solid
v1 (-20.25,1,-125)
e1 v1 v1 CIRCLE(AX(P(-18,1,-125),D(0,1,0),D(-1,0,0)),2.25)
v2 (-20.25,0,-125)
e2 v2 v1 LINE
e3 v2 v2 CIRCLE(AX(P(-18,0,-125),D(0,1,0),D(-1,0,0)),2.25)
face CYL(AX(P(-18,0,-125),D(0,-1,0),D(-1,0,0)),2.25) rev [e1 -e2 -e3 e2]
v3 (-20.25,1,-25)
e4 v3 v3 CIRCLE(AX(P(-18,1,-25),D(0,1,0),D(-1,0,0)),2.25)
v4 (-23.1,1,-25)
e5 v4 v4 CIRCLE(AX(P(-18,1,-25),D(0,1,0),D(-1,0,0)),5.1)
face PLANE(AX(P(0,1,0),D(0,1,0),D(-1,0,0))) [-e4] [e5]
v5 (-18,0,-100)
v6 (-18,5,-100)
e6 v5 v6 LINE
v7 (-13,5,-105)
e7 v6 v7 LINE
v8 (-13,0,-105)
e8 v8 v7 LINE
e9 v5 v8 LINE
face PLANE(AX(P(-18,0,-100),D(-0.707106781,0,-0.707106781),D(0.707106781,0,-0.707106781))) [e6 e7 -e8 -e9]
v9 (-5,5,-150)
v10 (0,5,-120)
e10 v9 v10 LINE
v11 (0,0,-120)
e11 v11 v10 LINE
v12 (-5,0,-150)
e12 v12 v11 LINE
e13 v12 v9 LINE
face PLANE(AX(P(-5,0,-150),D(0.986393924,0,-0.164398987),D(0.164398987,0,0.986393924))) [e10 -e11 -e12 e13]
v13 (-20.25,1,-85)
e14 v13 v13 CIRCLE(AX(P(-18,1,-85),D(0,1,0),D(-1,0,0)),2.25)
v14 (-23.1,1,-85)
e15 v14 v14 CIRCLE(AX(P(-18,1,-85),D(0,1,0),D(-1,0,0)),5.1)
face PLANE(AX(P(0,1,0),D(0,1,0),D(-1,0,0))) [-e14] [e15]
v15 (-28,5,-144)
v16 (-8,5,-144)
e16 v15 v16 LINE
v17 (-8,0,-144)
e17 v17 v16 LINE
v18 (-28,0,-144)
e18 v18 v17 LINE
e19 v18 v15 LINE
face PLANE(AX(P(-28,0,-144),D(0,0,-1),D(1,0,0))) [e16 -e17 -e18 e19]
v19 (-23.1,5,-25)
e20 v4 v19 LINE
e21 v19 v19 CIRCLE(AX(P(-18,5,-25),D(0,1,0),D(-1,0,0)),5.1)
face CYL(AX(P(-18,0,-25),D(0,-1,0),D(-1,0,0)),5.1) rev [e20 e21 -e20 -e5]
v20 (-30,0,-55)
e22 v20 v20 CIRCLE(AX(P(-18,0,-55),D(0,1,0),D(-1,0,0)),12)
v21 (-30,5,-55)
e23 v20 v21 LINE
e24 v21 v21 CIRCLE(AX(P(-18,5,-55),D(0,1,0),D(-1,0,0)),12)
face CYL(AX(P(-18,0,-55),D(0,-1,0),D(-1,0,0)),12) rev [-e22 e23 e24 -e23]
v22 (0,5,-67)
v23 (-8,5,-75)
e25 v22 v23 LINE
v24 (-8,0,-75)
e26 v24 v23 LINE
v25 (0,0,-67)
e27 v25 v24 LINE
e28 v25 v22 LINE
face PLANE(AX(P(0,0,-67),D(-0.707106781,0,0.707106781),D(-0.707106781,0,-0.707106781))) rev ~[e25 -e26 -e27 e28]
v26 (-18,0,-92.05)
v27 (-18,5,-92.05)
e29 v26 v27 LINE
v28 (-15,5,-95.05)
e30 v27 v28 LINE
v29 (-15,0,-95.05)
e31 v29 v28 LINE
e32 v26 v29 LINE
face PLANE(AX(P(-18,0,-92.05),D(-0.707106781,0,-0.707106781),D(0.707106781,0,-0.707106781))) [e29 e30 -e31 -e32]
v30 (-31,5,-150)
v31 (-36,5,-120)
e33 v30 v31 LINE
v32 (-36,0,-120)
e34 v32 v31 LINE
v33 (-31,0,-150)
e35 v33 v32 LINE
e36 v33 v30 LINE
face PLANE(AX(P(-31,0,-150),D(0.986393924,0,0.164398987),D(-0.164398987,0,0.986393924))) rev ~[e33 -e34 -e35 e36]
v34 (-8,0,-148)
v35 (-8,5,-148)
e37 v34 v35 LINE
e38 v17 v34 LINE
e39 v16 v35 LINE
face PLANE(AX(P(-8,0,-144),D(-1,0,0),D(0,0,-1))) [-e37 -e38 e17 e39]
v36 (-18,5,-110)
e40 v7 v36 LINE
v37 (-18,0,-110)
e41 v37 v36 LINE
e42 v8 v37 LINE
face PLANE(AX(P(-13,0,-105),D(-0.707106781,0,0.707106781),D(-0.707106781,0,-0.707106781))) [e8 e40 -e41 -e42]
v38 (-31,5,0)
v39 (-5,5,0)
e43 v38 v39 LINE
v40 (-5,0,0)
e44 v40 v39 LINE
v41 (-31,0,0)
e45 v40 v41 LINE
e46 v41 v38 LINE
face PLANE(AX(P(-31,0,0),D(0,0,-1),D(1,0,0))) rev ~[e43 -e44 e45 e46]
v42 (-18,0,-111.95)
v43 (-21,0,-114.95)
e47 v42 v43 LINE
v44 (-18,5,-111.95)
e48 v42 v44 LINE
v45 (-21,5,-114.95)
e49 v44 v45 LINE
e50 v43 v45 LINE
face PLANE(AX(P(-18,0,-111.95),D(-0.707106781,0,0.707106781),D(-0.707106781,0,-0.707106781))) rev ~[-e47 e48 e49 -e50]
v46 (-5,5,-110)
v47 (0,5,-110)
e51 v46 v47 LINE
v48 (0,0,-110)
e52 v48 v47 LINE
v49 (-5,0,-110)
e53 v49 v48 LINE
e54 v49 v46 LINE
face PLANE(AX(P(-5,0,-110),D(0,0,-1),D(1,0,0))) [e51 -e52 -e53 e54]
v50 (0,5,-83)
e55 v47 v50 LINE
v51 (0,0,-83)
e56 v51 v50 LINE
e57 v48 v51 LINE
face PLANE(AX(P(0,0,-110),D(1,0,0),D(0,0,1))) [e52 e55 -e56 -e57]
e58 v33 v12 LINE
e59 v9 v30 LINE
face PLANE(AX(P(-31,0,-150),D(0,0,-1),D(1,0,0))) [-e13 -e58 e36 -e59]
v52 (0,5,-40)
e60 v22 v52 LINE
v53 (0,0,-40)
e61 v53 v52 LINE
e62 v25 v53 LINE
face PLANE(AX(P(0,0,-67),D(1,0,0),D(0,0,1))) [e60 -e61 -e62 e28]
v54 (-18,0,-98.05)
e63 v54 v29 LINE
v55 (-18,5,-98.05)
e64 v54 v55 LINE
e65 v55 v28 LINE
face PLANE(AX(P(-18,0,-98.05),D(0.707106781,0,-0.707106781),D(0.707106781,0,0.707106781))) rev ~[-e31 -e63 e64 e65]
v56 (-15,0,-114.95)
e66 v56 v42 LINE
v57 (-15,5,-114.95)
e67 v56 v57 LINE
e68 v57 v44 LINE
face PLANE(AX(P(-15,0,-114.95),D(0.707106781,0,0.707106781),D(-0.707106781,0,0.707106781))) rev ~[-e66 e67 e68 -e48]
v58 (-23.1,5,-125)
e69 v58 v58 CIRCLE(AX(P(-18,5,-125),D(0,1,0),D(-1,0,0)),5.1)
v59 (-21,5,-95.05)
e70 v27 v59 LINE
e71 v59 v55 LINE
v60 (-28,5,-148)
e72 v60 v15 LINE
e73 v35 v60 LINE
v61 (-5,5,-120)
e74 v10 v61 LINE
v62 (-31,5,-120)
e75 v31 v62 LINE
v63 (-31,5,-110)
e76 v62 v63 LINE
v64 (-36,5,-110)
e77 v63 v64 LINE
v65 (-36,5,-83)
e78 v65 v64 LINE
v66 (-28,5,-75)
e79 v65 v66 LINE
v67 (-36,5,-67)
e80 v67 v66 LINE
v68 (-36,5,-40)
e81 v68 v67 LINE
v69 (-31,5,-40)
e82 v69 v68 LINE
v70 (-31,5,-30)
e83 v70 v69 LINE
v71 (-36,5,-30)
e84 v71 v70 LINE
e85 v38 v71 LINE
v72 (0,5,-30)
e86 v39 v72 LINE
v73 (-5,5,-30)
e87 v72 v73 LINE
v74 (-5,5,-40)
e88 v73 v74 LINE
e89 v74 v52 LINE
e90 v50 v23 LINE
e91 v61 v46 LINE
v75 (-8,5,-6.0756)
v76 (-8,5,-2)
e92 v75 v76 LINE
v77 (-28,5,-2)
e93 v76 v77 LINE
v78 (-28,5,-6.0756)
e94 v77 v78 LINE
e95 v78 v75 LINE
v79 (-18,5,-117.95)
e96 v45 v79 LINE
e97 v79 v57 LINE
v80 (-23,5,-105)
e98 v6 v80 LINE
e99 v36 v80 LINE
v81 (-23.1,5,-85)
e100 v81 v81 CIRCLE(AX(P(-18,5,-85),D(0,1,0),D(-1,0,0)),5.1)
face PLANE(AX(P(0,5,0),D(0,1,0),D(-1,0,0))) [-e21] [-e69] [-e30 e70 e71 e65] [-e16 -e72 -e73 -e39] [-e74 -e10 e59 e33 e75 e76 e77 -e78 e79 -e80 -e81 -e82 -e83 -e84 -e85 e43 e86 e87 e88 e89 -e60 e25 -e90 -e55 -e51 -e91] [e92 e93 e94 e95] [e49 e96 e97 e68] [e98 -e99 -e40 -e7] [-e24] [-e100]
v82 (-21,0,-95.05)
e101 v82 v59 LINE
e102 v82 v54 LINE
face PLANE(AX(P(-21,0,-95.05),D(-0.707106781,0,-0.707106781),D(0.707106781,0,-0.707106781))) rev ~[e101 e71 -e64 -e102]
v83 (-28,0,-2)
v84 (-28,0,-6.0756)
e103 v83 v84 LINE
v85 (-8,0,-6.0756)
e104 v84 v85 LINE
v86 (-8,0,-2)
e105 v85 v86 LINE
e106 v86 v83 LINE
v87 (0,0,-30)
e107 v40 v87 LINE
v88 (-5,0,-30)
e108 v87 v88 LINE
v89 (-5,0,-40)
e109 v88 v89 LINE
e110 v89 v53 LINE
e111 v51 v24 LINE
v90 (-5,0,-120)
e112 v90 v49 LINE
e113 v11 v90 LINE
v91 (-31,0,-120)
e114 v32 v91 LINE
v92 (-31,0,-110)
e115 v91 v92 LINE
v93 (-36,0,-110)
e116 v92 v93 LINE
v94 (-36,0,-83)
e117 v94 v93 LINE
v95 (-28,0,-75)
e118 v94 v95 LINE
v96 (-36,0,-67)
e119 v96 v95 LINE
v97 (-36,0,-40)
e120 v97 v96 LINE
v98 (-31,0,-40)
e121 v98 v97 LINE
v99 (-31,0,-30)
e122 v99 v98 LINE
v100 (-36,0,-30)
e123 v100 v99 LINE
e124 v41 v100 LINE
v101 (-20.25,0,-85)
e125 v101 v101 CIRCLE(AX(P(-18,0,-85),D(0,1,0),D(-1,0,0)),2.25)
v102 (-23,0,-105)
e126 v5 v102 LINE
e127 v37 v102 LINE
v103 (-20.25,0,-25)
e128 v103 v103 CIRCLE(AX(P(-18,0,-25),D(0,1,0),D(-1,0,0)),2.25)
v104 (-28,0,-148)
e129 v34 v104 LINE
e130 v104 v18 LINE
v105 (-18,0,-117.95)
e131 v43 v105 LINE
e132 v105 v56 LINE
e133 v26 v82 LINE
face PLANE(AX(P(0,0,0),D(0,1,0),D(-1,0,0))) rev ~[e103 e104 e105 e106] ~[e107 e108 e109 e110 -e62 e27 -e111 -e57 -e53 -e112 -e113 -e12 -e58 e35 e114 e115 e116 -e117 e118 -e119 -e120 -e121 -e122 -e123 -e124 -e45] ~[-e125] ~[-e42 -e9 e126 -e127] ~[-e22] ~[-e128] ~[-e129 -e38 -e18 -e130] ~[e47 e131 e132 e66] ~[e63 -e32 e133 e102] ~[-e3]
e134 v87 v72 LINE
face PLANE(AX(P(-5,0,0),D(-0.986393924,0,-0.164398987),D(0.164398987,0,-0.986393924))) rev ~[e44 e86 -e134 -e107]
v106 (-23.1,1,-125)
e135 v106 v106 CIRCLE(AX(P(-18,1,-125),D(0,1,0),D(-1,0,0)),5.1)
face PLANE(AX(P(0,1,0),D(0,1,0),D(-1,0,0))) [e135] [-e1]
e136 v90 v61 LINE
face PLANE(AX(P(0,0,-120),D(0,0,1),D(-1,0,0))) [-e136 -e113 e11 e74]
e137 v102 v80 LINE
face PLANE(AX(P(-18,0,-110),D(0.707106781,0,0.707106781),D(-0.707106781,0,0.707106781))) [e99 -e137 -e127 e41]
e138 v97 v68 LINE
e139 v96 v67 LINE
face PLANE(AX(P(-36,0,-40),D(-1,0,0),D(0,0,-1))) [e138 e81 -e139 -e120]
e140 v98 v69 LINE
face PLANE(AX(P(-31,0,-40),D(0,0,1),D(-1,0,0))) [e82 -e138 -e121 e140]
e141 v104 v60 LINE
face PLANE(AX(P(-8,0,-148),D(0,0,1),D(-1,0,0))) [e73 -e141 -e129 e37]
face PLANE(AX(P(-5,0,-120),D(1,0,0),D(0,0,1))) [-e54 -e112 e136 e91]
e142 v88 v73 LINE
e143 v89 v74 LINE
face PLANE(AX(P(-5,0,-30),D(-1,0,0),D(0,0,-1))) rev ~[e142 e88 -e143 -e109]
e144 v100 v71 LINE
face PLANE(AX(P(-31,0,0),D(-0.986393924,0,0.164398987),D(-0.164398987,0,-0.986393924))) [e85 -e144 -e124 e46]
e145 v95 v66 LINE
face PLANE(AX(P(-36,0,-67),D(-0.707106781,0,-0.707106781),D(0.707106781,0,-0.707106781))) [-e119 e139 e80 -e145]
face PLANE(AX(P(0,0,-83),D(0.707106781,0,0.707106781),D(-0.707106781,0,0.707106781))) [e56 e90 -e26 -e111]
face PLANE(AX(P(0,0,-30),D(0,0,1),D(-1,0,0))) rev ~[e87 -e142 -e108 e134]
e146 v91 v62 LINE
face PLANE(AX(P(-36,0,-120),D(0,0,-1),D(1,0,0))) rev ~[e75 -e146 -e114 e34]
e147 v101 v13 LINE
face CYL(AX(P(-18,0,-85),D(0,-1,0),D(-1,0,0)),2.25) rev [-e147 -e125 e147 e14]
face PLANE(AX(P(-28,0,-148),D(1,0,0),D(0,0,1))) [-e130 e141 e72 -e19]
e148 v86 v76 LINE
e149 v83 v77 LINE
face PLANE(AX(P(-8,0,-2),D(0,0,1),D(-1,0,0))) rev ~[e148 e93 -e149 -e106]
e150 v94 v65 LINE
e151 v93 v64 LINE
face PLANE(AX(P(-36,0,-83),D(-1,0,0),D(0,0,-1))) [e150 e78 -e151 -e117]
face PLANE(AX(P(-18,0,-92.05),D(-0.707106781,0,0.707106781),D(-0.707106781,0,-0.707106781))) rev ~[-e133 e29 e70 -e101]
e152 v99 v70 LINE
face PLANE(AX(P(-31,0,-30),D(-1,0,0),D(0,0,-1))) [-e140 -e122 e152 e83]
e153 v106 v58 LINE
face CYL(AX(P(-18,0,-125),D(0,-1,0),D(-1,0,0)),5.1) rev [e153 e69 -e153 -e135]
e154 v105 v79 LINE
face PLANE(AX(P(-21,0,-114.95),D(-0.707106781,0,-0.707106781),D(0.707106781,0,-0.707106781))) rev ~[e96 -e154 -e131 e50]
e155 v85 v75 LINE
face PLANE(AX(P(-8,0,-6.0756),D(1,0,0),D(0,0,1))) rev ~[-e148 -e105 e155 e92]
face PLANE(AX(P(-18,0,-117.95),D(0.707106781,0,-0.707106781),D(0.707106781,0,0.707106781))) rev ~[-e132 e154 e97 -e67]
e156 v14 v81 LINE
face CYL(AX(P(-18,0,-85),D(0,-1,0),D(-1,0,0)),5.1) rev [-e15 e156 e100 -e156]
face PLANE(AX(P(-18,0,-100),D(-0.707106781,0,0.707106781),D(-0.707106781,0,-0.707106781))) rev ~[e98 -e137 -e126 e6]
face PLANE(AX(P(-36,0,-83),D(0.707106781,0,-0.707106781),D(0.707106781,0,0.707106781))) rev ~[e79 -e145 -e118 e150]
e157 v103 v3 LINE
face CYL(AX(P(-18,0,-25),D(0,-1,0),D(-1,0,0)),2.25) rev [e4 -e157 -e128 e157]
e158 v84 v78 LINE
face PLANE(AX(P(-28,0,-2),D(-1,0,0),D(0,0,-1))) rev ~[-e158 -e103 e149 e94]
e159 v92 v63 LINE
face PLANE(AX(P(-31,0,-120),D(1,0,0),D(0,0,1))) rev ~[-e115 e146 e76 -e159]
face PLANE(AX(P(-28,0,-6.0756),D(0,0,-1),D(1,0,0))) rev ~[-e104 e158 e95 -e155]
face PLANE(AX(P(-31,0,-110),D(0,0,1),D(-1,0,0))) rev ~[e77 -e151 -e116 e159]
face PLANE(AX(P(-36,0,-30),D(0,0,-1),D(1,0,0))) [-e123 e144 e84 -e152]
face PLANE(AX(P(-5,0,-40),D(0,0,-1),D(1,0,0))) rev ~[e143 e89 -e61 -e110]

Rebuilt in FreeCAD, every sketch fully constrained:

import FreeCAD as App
import Part
import Sketcher


def add_polygon(sketch, points):
    """Adds a closed chain of lines whose ends are joined by coincident constraints."""
    first, n = sketch.GeometryCount, len(points)
    for a, b in zip(points, points[1:] + points[:1]):
        sketch.addGeometry(Part.LineSegment(App.Vector(*a, 0), App.Vector(*b, 0)), False)
    for i in range(n):
        sketch.addConstraint(Sketcher.Constraint("Coincident", first + i, 2, first + (i + 1) % n, 1))

doc = App.newDocument("Part")
params = doc.addObject("Spreadsheet::Sheet", "Params")
for row, (alias, value) in enumerate([
    ("sketch1_diameter", "24 mm"),
    ("sketch1_diameter2", "10.2 mm"),
    ("sketch1_width", "5 mm"),
    ("sketch1_height", "10 mm"),
    ("sketch1_height2", "4 mm"),
    ("pad1_length", "5 mm"),
    ("sketch2_diameter", "10.2 mm"),
    ("sketch2_diameter2", "4.5 mm"),
    ("pad2_length", "1 mm"),
], start=1):
    params.set(f"A{row}", alias)
    params.set(f"B{row}", "=" + value)
    params.setAlias(f"B{row}", alias)

body = doc.addObject("PartDesign::Body", "Body")

# Sketch on XZ plane
sketch1 = doc.addObject("Sketcher::SketchObject", "Sketch")
body.addObject(sketch1)
sketch1.AttachmentSupport = (doc.XZ_Plane, [""])
sketch1.MapMode = "FlatFace"
add_polygon(sketch1, [(-31, -30), (-36, -30), (-31, 0), (-5, 0), (0, -30), (-5, -30), (-5, -40), (0, -40), (0, -67), (-8, -75), (0, -83), (0, -110), (-5, -110), (-5, -120), (0, -120), (-5, -150), (-31, -150), (-36, -120), (-31, -120), (-31, -110), (-36, -110), (-36, -83), (-28, -75), (-36, -67), (-36, -40), (-31, -40)])  # lines 0-25
add_polygon(sketch1, [(-28, -148), (-8, -148), (-8, -144), (-28, -144)])  # lines 26-29
sketch1.addGeometry(Part.Circle(App.Vector(-18, -125, 0), App.Vector(0, 0, 1), 5.1), False)  # 30
add_polygon(sketch1, [(-18, -112), (-21, -115), (-18, -118), (-15, -115)])  # lines 31-34
add_polygon(sketch1, [(-13, -105), (-18, -100), (-23, -105), (-18, -110)])  # lines 35-38
add_polygon(sketch1, [(-18, -92), (-21, -95), (-18, -98), (-15, -95)])  # lines 39-42
sketch1.addGeometry(Part.Circle(App.Vector(-18, -85, 0), App.Vector(0, 0, 1), 5.1), False)  # 43
sketch1.addGeometry(Part.Circle(App.Vector(-18, -55, 0), App.Vector(0, 0, 1), 12), False)  # 44
sketch1.addGeometry(Part.Circle(App.Vector(-18, -25, 0), App.Vector(0, 0, 1), 5.1), False)  # 45
add_polygon(sketch1, [(-8, -6.1), (-8, -2), (-28, -2), (-28, -6.1)])  # lines 46-49
sketch1.addConstraint(Sketcher.Constraint("Horizontal", 0))
sketch1.addConstraint(Sketcher.Constraint("Horizontal", 2))
sketch1.addConstraint(Sketcher.Constraint("Horizontal", 4))
sketch1.addConstraint(Sketcher.Constraint("Vertical", 5))
sketch1.addConstraint(Sketcher.Constraint("Horizontal", 6))
sketch1.addConstraint(Sketcher.Constraint("Vertical", 7))
sketch1.addConstraint(Sketcher.Constraint("Vertical", 10))
sketch1.addConstraint(Sketcher.Constraint("Horizontal", 11))
sketch1.addConstraint(Sketcher.Constraint("Vertical", 12))
sketch1.addConstraint(Sketcher.Constraint("Horizontal", 13))
sketch1.addConstraint(Sketcher.Constraint("Horizontal", 15))
sketch1.addConstraint(Sketcher.Constraint("Horizontal", 17))
sketch1.addConstraint(Sketcher.Constraint("Vertical", 18))
sketch1.addConstraint(Sketcher.Constraint("Horizontal", 19))
sketch1.addConstraint(Sketcher.Constraint("Vertical", 20))
sketch1.addConstraint(Sketcher.Constraint("Vertical", 23))
sketch1.addConstraint(Sketcher.Constraint("Horizontal", 24))
sketch1.addConstraint(Sketcher.Constraint("Vertical", 25))
sketch1.addConstraint(Sketcher.Constraint("Horizontal", 26))
sketch1.addConstraint(Sketcher.Constraint("Vertical", 27))
sketch1.addConstraint(Sketcher.Constraint("Horizontal", 28))
sketch1.addConstraint(Sketcher.Constraint("Vertical", 29))
sketch1.addConstraint(Sketcher.Constraint("Vertical", 46))
sketch1.addConstraint(Sketcher.Constraint("Horizontal", 47))
sketch1.addConstraint(Sketcher.Constraint("Vertical", 48))
sketch1.addConstraint(Sketcher.Constraint("Horizontal", 49))
sketch1.addConstraint(Sketcher.Constraint("Equal", 30, 43))
sketch1.addConstraint(Sketcher.Constraint("Equal", 43, 45))
sketch1.addConstraint(Sketcher.Constraint("PointOnObject", 1, 2, -1))
sketch1.addConstraint(Sketcher.Constraint("PointOnObject", 3, 2, -2))
sketch1.addConstraint(Sketcher.Constraint("PointOnObject", 6, 2, -2))
sketch1.addConstraint(Sketcher.Constraint("PointOnObject", 9, 2, -2))
sketch1.addConstraint(Sketcher.Constraint("PointOnObject", 13, 2, -2))
sketch1.addConstraint(Sketcher.Constraint("Perpendicular", 8, 9))
sketch1.addConstraint(Sketcher.Constraint("Parallel", 1, 14))
sketch1.addConstraint(Sketcher.Constraint("Parallel", 3, 16))
sketch1.addConstraint(Sketcher.Constraint("Perpendicular", 9, 21))
sketch1.addConstraint(Sketcher.Constraint("Perpendicular", 21, 22))
sketch1.addConstraint(Sketcher.Constraint("Perpendicular", 22, 31))
sketch1.addConstraint(Sketcher.Constraint("Perpendicular", 31, 32))
sketch1.addConstraint(Sketcher.Constraint("Perpendicular", 32, 33))
sketch1.addConstraint(Sketcher.Constraint("Perpendicular", 33, 34))
sketch1.addConstraint(Sketcher.Constraint("Parallel", 34, 35))
sketch1.addConstraint(Sketcher.Constraint("Perpendicular", 35, 36))
sketch1.addConstraint(Sketcher.Constraint("Perpendicular", 36, 37))
sketch1.addConstraint(Sketcher.Constraint("Perpendicular", 37, 38))
sketch1.addConstraint(Sketcher.Constraint("Parallel", 38, 39))
sketch1.addConstraint(Sketcher.Constraint("Perpendicular", 39, 40))
sketch1.addConstraint(Sketcher.Constraint("Perpendicular", 40, 41))
sketch1.addConstraint(Sketcher.Constraint("Perpendicular", 41, 42))
sketch1.addConstraint(Sketcher.Constraint("Horizontal", 0, 2, 3, 2))
sketch1.addConstraint(Sketcher.Constraint("Horizontal", 13, 2, 16, 2))
sketch1.addConstraint(Sketcher.Constraint("Horizontal", 11, 2, 18, 2))
sketch1.addConstraint(Sketcher.Constraint("Horizontal", 9, 2, 20, 2))
sketch1.addConstraint(Sketcher.Constraint("Horizontal", 8, 2, 21, 2))
sketch1.addConstraint(Sketcher.Constraint("Horizontal", 7, 2, 22, 2))
sketch1.addConstraint(Sketcher.Constraint("Horizontal", 6, 2, 23, 2))
sketch1.addConstraint(Sketcher.Constraint("Horizontal", 31, 2, 33, 2))
sketch1.addConstraint(Sketcher.Constraint("Horizontal", 19, 2, 37, 2))
sketch1.addConstraint(Sketcher.Constraint("Horizontal", 36, 2, 38, 2))
sketch1.addConstraint(Sketcher.Constraint("Horizontal", 39, 2, 41, 2))
sketch1.addConstraint(Sketcher.Constraint("Vertical", 30, 3, 43, 3))
sketch1.addConstraint(Sketcher.Constraint("Vertical", 43, 3, 44, 3))
sketch1.addConstraint(Sketcher.Constraint("Vertical", 44, 3, 45, 3))
sketch1.addConstraint(Sketcher.Constraint("Vertical", 2, 2, 4, 2))
sketch1.addConstraint(Sketcher.Constraint("Vertical", 5, 2, 11, 2))
sketch1.addConstraint(Sketcher.Constraint("Vertical", 12, 2, 14, 2))
sketch1.addConstraint(Sketcher.Constraint("Vertical", 1, 2, 15, 2))
sketch1.addConstraint(Sketcher.Constraint("Vertical", 0, 2, 16, 2))
sketch1.addConstraint(Sketcher.Constraint("Vertical", 15, 2, 17, 2))
sketch1.addConstraint(Sketcher.Constraint("Vertical", 16, 2, 19, 2))
sketch1.addConstraint(Sketcher.Constraint("Vertical", 20, 2, 22, 2))
sketch1.addConstraint(Sketcher.Constraint("Vertical", 18, 2, 24, 2))
sketch1.addConstraint(Sketcher.Constraint("Vertical", 8, 2, 26, 2))
sketch1.addConstraint(Sketcher.Constraint("Vertical", 21, 2, 28, 2))
sketch1.addConstraint(Sketcher.Constraint("Vertical", 45, 3, 32, 2))
sketch1.addConstraint(Sketcher.Constraint("Vertical", 34, 2, 35, 2))
sketch1.addConstraint(Sketcher.Constraint("Vertical", 31, 2, 39, 2))
sketch1.addConstraint(Sketcher.Constraint("Vertical", 37, 2, 40, 2))
sketch1.addConstraint(Sketcher.Constraint("Vertical", 27, 2, 46, 2))
sketch1.addConstraint(Sketcher.Constraint("Vertical", 29, 2, 47, 2))
sketch1.addConstraint(Sketcher.Constraint("Equal", 7, 10))
sketch1.addConstraint(Sketcher.Constraint("Equal", 5, 12))
sketch1.addConstraint(Sketcher.Constraint("Diameter", 44, 24.0))
sketch1.addConstraint(Sketcher.Constraint("Diameter", 30, 10.2))
sketch1.addConstraint(Sketcher.Constraint("DistanceX", 0, 2, 0, 1, 5.0))
sketch1.addConstraint(Sketcher.Constraint("DistanceY", 5, 2, 5, 1, 10.0))
sketch1.addConstraint(Sketcher.Constraint("DistanceY", 27, 1, 27, 2, 4.0))
sketch1.addConstraint(Sketcher.Constraint("DistanceX", 0, 2, -1, 1, 36.0))
sketch1.addConstraint(Sketcher.Constraint("DistanceY", 0, 2, -1, 1, 30.0))
sketch1.addConstraint(Sketcher.Constraint("DistanceX", 8, 2, -1, 1, 8.0))
sketch1.addConstraint(Sketcher.Constraint("DistanceY", 46, 2, -1, 1, 2.0))
sketch1.addConstraint(Sketcher.Constraint("DistanceY", 30, 3, 43, 3, 40.0))
sketch1.addConstraint(Sketcher.Constraint("DistanceY", 43, 3, 44, 3, 30.0))
sketch1.addConstraint(Sketcher.Constraint("DistanceY", 44, 3, 45, 3, 30.0))
sketch1.addConstraint(Sketcher.Constraint("DistanceY", 0, 2, 45, 3, 5.0))
sketch1.addConstraint(Sketcher.Constraint("DistanceX", 43, 3, 8, 2, 10.0))
sketch1.addConstraint(Sketcher.Constraint("DistanceY", 43, 3, 8, 2, 10.0))
sketch1.addConstraint(Sketcher.Constraint("DistanceY", 14, 2, 26, 2, 2.0))
sketch1.addConstraint(Sketcher.Constraint("DistanceX", 31, 2, 30, 3, 3.0))
sketch1.addConstraint(Sketcher.Constraint("DistanceY", 11, 2, 35, 2, 10.0))
sketch1.addConstraint(Sketcher.Constraint("DistanceY", 31, 2, -1, 1, 114.95))
sketch1.addConstraint(Sketcher.Constraint("DistanceY", 39, 2, -1, 1, 95.05))
sketch1.addConstraint(Sketcher.Constraint("DistanceY", 46, 1, 46, 2, 4.0756))
sketch1.setExpression("Constraints[129]", "Params.sketch1_diameter")
sketch1.setExpression("Constraints[130]", "Params.sketch1_diameter2")
sketch1.setExpression("Constraints[131]", "Params.sketch1_width")
sketch1.setExpression("Constraints[132]", "Params.sketch1_height")
sketch1.setExpression("Constraints[133]", "Params.sketch1_height2")
pad1 = doc.addObject("PartDesign::Pad", "Pad")
body.addObject(pad1)
pad1.Profile = sketch1
pad1.setExpression("Length", "Params.pad1_length")
pad1.Reversed = True

# Sketch on XZ plane
sketch2 = doc.addObject("Sketcher::SketchObject", "Sketch001")
body.addObject(sketch2)
sketch2.AttachmentSupport = (doc.XZ_Plane, [""])
sketch2.MapMode = "FlatFace"
sketch2.addGeometry(Part.Circle(App.Vector(-18, -25, 0), App.Vector(0, 0, 1), 5.1), False)
sketch2.addGeometry(Part.Circle(App.Vector(-18, -25, 0), App.Vector(0, 0, 1), 2.2), False)
sketch2.addGeometry(Part.Circle(App.Vector(-18, -85, 0), App.Vector(0, 0, 1), 5.1), False)
sketch2.addGeometry(Part.Circle(App.Vector(-18, -85, 0), App.Vector(0, 0, 1), 2.2), False)
sketch2.addGeometry(Part.Circle(App.Vector(-18, -125, 0), App.Vector(0, 0, 1), 5.1), False)
sketch2.addGeometry(Part.Circle(App.Vector(-18, -125, 0), App.Vector(0, 0, 1), 2.2), False)
sketch2.addConstraint(Sketcher.Constraint("Coincident", 1, 3, 0, 3))
sketch2.addConstraint(Sketcher.Constraint("Coincident", 3, 3, 2, 3))
sketch2.addConstraint(Sketcher.Constraint("Coincident", 5, 3, 4, 3))
sketch2.addConstraint(Sketcher.Constraint("Equal", 0, 2))
sketch2.addConstraint(Sketcher.Constraint("Equal", 1, 3))
sketch2.addConstraint(Sketcher.Constraint("Equal", 2, 4))
sketch2.addConstraint(Sketcher.Constraint("Equal", 3, 5))
sketch2.addConstraint(Sketcher.Constraint("Vertical", 1, 3, 2, 3))
sketch2.addConstraint(Sketcher.Constraint("Vertical", 3, 3, 4, 3))
sketch2.addConstraint(Sketcher.Constraint("Diameter", 0, 10.2))
sketch2.addConstraint(Sketcher.Constraint("Diameter", 1, 4.5))
sketch2.addConstraint(Sketcher.Constraint("DistanceY", 4, 3, 2, 3, 40.0))
sketch2.addConstraint(Sketcher.Constraint("DistanceX", 0, 3, -1, 1, 18.0))
sketch2.addConstraint(Sketcher.Constraint("DistanceY", 0, 3, -1, 1, 25.0))
sketch2.addConstraint(Sketcher.Constraint("DistanceY", 2, 3, -1, 1, 85.0))
sketch2.setExpression("Constraints[9]", "Params.sketch2_diameter")
sketch2.setExpression("Constraints[10]", "Params.sketch2_diameter2")
pad2 = doc.addObject("PartDesign::Pad", "Pad001")
body.addObject(pad2)
pad2.Profile = sketch2
pad2.setExpression("Length", "Params.pad2_length")
pad2.Reversed = True

doc.recompute()
